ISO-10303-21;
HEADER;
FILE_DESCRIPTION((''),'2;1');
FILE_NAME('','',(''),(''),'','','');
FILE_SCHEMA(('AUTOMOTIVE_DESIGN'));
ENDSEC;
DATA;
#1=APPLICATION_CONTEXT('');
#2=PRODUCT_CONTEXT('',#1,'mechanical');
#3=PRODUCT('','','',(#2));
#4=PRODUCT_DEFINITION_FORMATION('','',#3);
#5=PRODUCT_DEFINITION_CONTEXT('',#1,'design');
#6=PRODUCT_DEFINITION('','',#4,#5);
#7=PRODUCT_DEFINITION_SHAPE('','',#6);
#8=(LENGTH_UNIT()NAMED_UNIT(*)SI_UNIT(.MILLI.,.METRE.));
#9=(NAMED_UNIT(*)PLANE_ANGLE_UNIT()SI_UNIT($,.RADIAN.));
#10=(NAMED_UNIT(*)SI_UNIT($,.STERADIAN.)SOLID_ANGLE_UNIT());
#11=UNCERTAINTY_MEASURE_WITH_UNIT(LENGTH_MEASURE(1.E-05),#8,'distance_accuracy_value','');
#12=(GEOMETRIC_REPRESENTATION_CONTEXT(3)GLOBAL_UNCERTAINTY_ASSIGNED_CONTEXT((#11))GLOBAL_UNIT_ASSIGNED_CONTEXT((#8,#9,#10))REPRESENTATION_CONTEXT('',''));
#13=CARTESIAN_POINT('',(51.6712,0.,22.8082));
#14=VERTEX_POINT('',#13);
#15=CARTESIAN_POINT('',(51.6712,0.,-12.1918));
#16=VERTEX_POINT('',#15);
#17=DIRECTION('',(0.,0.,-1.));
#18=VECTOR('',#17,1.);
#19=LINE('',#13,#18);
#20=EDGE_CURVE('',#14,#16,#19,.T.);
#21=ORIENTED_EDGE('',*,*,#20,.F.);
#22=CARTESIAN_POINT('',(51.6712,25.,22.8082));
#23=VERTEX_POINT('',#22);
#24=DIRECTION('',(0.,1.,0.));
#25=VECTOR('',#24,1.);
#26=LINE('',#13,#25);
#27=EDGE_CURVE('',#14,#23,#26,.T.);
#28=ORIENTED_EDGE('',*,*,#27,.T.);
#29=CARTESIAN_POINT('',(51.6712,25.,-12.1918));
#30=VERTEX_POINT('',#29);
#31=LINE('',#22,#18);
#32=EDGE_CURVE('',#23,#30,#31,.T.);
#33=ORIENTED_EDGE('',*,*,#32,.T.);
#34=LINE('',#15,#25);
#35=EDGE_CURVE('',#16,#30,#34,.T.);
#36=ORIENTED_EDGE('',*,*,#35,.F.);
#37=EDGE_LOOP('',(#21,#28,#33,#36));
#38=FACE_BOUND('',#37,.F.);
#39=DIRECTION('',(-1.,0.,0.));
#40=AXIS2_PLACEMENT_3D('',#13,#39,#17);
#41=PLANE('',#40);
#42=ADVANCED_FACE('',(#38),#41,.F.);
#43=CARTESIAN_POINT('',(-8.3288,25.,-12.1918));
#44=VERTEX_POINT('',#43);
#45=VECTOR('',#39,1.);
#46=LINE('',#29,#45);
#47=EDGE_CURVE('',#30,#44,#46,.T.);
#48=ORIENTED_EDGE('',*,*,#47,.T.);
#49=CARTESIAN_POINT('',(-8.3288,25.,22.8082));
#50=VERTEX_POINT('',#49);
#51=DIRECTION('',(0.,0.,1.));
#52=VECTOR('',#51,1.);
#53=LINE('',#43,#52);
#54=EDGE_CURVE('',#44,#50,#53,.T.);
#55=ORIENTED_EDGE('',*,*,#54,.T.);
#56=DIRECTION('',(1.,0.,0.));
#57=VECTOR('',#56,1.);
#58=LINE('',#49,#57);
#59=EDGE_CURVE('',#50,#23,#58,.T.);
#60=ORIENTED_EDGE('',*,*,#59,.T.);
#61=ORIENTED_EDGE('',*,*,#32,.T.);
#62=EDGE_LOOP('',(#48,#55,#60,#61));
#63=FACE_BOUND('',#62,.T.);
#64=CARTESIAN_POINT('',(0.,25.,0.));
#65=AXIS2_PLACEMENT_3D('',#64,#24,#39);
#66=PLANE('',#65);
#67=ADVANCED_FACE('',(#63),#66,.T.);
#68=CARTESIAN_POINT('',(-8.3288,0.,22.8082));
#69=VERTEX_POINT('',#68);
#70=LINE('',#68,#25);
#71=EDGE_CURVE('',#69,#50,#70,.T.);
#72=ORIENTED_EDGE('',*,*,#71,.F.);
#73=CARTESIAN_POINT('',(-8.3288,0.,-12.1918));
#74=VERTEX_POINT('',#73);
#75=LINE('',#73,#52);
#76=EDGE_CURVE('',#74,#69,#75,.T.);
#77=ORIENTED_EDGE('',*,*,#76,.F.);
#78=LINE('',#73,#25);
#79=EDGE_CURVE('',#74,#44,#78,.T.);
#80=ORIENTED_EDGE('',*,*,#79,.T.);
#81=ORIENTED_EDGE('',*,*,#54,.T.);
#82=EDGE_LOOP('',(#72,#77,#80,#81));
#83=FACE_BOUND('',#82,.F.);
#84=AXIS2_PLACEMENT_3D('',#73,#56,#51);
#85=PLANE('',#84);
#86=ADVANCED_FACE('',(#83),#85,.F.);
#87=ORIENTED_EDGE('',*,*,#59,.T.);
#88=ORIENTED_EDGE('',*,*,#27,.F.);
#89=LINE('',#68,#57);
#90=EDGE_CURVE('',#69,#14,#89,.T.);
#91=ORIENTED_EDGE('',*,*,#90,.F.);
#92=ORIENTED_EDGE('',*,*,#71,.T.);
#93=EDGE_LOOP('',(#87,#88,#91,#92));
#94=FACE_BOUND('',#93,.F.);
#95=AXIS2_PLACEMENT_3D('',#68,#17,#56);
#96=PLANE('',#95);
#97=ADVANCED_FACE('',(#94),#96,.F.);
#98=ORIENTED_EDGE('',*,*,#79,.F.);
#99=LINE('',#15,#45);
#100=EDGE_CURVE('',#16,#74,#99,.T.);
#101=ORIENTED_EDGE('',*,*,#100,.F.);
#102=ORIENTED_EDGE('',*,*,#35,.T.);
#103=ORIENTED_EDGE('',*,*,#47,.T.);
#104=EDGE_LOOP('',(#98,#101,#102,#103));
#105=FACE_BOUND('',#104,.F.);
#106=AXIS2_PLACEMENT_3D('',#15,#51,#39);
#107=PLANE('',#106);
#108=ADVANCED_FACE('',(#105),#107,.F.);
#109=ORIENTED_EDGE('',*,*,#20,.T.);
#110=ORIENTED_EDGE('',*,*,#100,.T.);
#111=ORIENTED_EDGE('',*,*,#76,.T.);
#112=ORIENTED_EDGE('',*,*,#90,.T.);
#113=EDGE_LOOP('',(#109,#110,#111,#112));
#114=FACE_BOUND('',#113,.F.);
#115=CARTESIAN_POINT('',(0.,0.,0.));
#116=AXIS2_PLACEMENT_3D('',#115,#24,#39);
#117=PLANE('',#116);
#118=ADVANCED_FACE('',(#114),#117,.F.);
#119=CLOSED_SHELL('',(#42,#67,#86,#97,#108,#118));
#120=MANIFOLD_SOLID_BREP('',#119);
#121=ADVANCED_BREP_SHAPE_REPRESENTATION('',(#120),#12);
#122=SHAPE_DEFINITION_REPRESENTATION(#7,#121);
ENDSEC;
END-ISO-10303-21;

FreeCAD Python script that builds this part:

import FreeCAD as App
import Part
import Sketcher
from FreeCAD import Vector
Q = App.Units.Quantity

doc = App.newDocument("Part")
body = doc.addObject("PartDesign::Body", "Body")

# Sketch on XZ plane
sketch1 = doc.addObject("Sketcher::SketchObject", "Sketch")
body.addObject(sketch1)
sketch1.AttachmentSupport = (doc.XZ_Plane, [""])
sketch1.MapMode = "FlatFace"
sketch1.addGeometry(Part.LineSegment(Vector(-8.3288, -12.1918, 0), Vector(-8.3288, 22.8082, 0)), False)
sketch1.addGeometry(Part.LineSegment(Vector(-8.3288, 22.8082, 0), Vector(51.6712, 22.8082, 0)), False)
sketch1.addGeometry(Part.LineSegment(Vector(51.6712, 22.8082, 0), Vector(51.6712, -12.1918, 0)), False)
sketch1.addGeometry(Part.LineSegment(Vector(51.6712, -12.1918, 0), Vector(-8.3288, -12.1918, 0)), False)
sketch1.addConstraint(Sketcher.Constraint("Coincident", 0, 2, 1, 1))
sketch1.addConstraint(Sketcher.Constraint("Coincident", 1, 2, 2, 1))
sketch1.addConstraint(Sketcher.Constraint("Coincident", 2, 2, 3, 1))
sketch1.addConstraint(Sketcher.Constraint("Coincident", 3, 2, 0, 1))
sketch1.addConstraint(Sketcher.Constraint("Vertical", 0))
sketch1.addConstraint(Sketcher.Constraint("Horizontal", 1))
sketch1.addConstraint(Sketcher.Constraint("Vertical", 2))
sketch1.addConstraint(Sketcher.Constraint("Horizontal", 3))
sketch1.addConstraint(Sketcher.Constraint("DistanceX", 1, 1, 1, 2, Q("60 mm")))
sketch1.addConstraint(Sketcher.Constraint("DistanceY", 0, 1, 0, 2, Q("35 mm")))
sketch1.addConstraint(Sketcher.Constraint("DistanceX", 0, 2, -1, 1, Q("8.3288 mm")))
sketch1.addConstraint(Sketcher.Constraint("DistanceY", -1, 1, 0, 2, Q("22.8082 mm")))
pad1 = doc.addObject("PartDesign::Pad", "Pad")
body.addObject(pad1)
pad1.Profile = sketch1
pad1.Length = 25
pad1.Reversed = True

doc.recompute()
